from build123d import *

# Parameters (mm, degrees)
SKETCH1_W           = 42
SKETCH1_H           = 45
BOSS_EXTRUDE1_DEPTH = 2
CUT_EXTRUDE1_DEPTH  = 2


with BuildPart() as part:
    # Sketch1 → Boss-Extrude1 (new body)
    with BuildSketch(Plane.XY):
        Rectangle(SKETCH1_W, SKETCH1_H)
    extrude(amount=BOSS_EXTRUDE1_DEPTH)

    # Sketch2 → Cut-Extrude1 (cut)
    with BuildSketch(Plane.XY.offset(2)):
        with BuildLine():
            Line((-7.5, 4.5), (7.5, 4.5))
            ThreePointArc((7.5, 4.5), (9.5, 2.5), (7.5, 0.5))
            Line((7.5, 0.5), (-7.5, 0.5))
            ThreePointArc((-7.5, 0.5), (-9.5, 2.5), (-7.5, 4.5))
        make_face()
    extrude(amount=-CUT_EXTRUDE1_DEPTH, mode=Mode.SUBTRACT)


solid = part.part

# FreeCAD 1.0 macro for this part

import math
import FreeCAD as App
import Part
import Sketcher

V = App.Vector


def add_polygon(sketch, points):
    """Adds a closed chain of lines whose ends are joined by coincident constraints."""
    first, n = sketch.GeometryCount, len(points)
    for a, b in zip(points, points[1:] + points[:1]):
        sketch.addGeometry(Part.LineSegment(App.Vector(*a, 0), App.Vector(*b, 0)), False)
    for i in range(n):
        sketch.addConstraint(Sketcher.Constraint("Coincident", first + i, 2, first + (i + 1) % n, 1))

doc = App.newDocument("Part")
body = doc.addObject("PartDesign::Body", "Body")

# Sketch on XY plane
sketch1 = doc.addObject("Sketcher::SketchObject", "Sketch")
body.addObject(sketch1)
sketch1.AttachmentSupport = (doc.XY_Plane, [""])
sketch1.MapMode = "FlatFace"
add_polygon(sketch1, [(-21, 22), (-21, -22), (21, -22), (21, 22)])  # lines 0-3
sketch1.addConstraint([
    Sketcher.Constraint("Vertical", 0),
    Sketcher.Constraint("Horizontal", 1),
    Sketcher.Constraint("Vertical", 2),
    Sketcher.Constraint("Horizontal", 3),
    Sketcher.Constraint("Symmetric", 0, 2, 2, 2, -1, 1),
    Sketcher.Constraint("DistanceX", 1, 1, 1, 2, 42.0),
    Sketcher.Constraint("DistanceY", 0, 2, 0, 1, 45.0),
])
pad1 = doc.addObject("PartDesign::Pad", "Pad")
body.addObject(pad1)
pad1.Profile = sketch1
pad1.Length = 2

# Sketch on XY plane
sketch2 = doc.addObject("Sketcher::SketchObject", "Sketch001")
body.addObject(sketch2)
sketch2.AttachmentSupport = (doc.XY_Plane, [""])
sketch2.MapMode = "FlatFace"
sketch2.AttachmentOffset = App.Placement(V(0, 0, 2), App.Rotation())
sketch2.addGeometry([
    Part.LineSegment(V(7.5, 4.5, 0), V(-7.5, 4.5, 0)),
    Part.ArcOfCircle(Part.Circle(V(-7.5, 2.5, 0), V(0, 0, 1), 2), math.radians(90), math.radians(270)),
    Part.LineSegment(V(-7.5, 0.5, 0), V(7.5, 0.5, 0)),
    Part.ArcOfCircle(Part.Circle(V(7.5, 2.5, 0), V(0, 0, 1), 2), math.radians(-90), math.radians(90)),
], False)
sketch2.addConstraint([
    Sketcher.Constraint("Tangent", 0, 2, 1, 1),
    Sketcher.Constraint("Tangent", 1, 2, 2, 1),
    Sketcher.Constraint("Tangent", 2, 2, 3, 1),
    Sketcher.Constraint("Tangent", 3, 2, 0, 1),
    Sketcher.Constraint("Horizontal", 0),
    Sketcher.Constraint("Horizontal", 2),
    Sketcher.Constraint("Radius", 1, 2.0),
    Sketcher.Constraint("DistanceX", 0, 2, 0, 1, 15.0),
    Sketcher.Constraint("DistanceX", 1, 3, -1, 1, 7.5),
    Sketcher.Constraint("DistanceY", -1, 1, 1, 3, 2.5),
])
pocket1 = doc.addObject("PartDesign::Pocket", "Pocket")
body.addObject(pocket1)
pocket1.Profile = sketch2
pocket1.Length = 2

doc.recompute()
